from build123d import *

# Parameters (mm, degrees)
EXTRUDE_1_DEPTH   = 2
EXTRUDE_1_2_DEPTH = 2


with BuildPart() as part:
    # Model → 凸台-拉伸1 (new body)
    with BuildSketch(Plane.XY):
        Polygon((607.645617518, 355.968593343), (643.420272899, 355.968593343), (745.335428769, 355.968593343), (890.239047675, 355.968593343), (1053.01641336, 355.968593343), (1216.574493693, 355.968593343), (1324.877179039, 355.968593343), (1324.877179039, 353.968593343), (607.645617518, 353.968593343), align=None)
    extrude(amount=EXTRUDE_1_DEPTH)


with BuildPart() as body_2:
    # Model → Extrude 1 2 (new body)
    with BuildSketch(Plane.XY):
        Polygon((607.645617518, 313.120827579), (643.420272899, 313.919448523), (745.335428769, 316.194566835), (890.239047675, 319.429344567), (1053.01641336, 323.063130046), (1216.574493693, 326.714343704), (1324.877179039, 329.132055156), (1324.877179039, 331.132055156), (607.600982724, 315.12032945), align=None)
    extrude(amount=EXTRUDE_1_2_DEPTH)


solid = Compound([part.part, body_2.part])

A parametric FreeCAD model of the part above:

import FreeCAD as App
import Part
import Sketcher
from FreeCAD import Vector
Q = App.Units.Quantity

doc = App.newDocument("Part")
body = doc.addObject("PartDesign::Body", "Body")

sketch1 = doc.addObject("Sketcher::SketchObject", "Sketch")
body.addObject(sketch1)
sketch1.AttachmentSupport = (doc.XY_Plane, [""])
sketch1.MapMode = "FlatFace"
sketch1.addGeometry([
    Part.LineSegment(Vector(1324.9, 356, 0), Vector(607.6, 356, 0)),
    Part.LineSegment(Vector(607.6, 356, 0), Vector(607.6, 354, 0)),
    Part.LineSegment(Vector(607.6, 354, 0), Vector(1324.9, 354, 0)),
    Part.LineSegment(Vector(1324.9, 354, 0), Vector(1324.9, 356, 0)),
], False)
sketch1.addConstraint([
    Sketcher.Constraint("Coincident", 0, 2, 1, 1),
    Sketcher.Constraint("Coincident", 1, 2, 2, 1),
    Sketcher.Constraint("Coincident", 2, 2, 3, 1),
    Sketcher.Constraint("Coincident", 3, 2, 0, 1),
    Sketcher.Constraint("Horizontal", 0),
    Sketcher.Constraint("Vertical", 1),
    Sketcher.Constraint("Horizontal", 2),
    Sketcher.Constraint("Vertical", 3),
    Sketcher.Constraint("DistanceY", 1, 2, 1, 1, Q("2 mm")),
    Sketcher.Constraint("DistanceX", 0, 2, 0, 1, Q("717.231562 mm")),
    Sketcher.Constraint("DistanceX", -1, 1, 2, 2, Q("1324.877179 mm")),
    Sketcher.Constraint("DistanceY", -1, 1, 0, 2, Q("355.968593 mm")),
])
pad1 = doc.addObject("PartDesign::Pad", "Pad")
body.addObject(pad1)
pad1.Profile = sketch1
pad1.Length = 2
body2 = doc.addObject("PartDesign::Body", "Body001")

sketch2 = doc.addObject("Sketcher::SketchObject", "Sketch001")
body2.addObject(sketch2)
sketch2.AttachmentSupport = (doc.getObject("XY_Plane001"), [""])
sketch2.MapMode = "FlatFace"
sketch2.addGeometry([
    Part.LineSegment(Vector(607.645618, 313.120828, 0), Vector(643.420273, 313.919449, 0)),
    Part.LineSegment(Vector(643.420273, 313.919449, 0), Vector(745.335429, 316.194567, 0)),
    Part.LineSegment(Vector(745.335429, 316.194567, 0), Vector(890.239048, 319.429345, 0)),
    Part.LineSegment(Vector(890.239048, 319.429345, 0), Vector(1053.016413, 323.06313, 0)),
    Part.LineSegment(Vector(1053.016413, 323.06313, 0), Vector(1216.574494, 326.714344, 0)),
    Part.LineSegment(Vector(1216.574494, 326.714344, 0), Vector(1324.877179, 329.132055, 0)),
    Part.LineSegment(Vector(1324.877179, 329.132055, 0), Vector(1324.877179, 331.132055, 0)),
    Part.LineSegment(Vector(1324.877179, 331.132055, 0), Vector(607.600983, 315.120329, 0)),
    Part.LineSegment(Vector(607.600983, 315.120329, 0), Vector(607.645618, 313.120828, 0)),
], False)
sketch2.addConstraint([
    Sketcher.Constraint("Coincident", 0, 2, 1, 1),
    Sketcher.Constraint("Coincident", 1, 2, 2, 1),
    Sketcher.Constraint("Coincident", 2, 2, 3, 1),
    Sketcher.Constraint("Coincident", 3, 2, 4, 1),
    Sketcher.Constraint("Coincident", 4, 2, 5, 1),
    Sketcher.Constraint("Coincident", 5, 2, 6, 1),
    Sketcher.Constraint("Coincident", 6, 2, 7, 1),
    Sketcher.Constraint("Coincident", 7, 2, 8, 1),
    Sketcher.Constraint("Coincident", 8, 2, 0, 1),
    Sketcher.Constraint("Vertical", 6),
    Sketcher.Constraint("DistanceY", 6, 1, 6, 2, Q("2 mm")),
    Sketcher.Constraint("Distance", 8, Q("2 mm")),
    Sketcher.Constraint("DistanceY", 2, 2, 4, 2, Q("7.284999 mm")),
    Sketcher.Constraint("DistanceY", 7, 2, 3, 2, Q("7.942801 mm")),
    Sketcher.Constraint("DistanceY", 8, 2, 7, 2, Q("1.999502 mm")),
    Sketcher.Constraint("Distance", 0, Q("35.783568 mm")),
    Sketcher.Constraint("Distance", 2, Q("144.93972 mm")),
    Sketcher.Constraint("Distance", 3, Q("162.81792 mm")),
    Sketcher.Constraint("Distance", 4, Q("163.598829 mm")),
    Sketcher.Constraint("Distance", 5, Q("108.329668 mm")),
    Sketcher.Constraint("Distance", 7, Q("717.454889 mm")),
    Sketcher.Constraint("DistanceY", -1, 1, 0, 2, Q("313.919449 mm")),
    Sketcher.Constraint("DistanceX", -1, 1, 1, 2, Q("745.335429 mm")),
    Sketcher.Constraint("DistanceY", -1, 1, 3, 2, Q("323.06313 mm")),
    Sketcher.Constraint("DistanceX", -1, 1, 5, 2, Q("1324.877179 mm")),
    Sketcher.Constraint("DistanceY", 0, 2, 1, 2, Q("2.275118 mm")),
    Sketcher.Constraint("DistanceX", 1, 2, 2, 2, Q("144.903619 mm")),
])
pad2 = doc.addObject("PartDesign::Pad", "Pad001")
body2.addObject(pad2)
pad2.Profile = sketch2
pad2.Length = 2

doc.recompute()
